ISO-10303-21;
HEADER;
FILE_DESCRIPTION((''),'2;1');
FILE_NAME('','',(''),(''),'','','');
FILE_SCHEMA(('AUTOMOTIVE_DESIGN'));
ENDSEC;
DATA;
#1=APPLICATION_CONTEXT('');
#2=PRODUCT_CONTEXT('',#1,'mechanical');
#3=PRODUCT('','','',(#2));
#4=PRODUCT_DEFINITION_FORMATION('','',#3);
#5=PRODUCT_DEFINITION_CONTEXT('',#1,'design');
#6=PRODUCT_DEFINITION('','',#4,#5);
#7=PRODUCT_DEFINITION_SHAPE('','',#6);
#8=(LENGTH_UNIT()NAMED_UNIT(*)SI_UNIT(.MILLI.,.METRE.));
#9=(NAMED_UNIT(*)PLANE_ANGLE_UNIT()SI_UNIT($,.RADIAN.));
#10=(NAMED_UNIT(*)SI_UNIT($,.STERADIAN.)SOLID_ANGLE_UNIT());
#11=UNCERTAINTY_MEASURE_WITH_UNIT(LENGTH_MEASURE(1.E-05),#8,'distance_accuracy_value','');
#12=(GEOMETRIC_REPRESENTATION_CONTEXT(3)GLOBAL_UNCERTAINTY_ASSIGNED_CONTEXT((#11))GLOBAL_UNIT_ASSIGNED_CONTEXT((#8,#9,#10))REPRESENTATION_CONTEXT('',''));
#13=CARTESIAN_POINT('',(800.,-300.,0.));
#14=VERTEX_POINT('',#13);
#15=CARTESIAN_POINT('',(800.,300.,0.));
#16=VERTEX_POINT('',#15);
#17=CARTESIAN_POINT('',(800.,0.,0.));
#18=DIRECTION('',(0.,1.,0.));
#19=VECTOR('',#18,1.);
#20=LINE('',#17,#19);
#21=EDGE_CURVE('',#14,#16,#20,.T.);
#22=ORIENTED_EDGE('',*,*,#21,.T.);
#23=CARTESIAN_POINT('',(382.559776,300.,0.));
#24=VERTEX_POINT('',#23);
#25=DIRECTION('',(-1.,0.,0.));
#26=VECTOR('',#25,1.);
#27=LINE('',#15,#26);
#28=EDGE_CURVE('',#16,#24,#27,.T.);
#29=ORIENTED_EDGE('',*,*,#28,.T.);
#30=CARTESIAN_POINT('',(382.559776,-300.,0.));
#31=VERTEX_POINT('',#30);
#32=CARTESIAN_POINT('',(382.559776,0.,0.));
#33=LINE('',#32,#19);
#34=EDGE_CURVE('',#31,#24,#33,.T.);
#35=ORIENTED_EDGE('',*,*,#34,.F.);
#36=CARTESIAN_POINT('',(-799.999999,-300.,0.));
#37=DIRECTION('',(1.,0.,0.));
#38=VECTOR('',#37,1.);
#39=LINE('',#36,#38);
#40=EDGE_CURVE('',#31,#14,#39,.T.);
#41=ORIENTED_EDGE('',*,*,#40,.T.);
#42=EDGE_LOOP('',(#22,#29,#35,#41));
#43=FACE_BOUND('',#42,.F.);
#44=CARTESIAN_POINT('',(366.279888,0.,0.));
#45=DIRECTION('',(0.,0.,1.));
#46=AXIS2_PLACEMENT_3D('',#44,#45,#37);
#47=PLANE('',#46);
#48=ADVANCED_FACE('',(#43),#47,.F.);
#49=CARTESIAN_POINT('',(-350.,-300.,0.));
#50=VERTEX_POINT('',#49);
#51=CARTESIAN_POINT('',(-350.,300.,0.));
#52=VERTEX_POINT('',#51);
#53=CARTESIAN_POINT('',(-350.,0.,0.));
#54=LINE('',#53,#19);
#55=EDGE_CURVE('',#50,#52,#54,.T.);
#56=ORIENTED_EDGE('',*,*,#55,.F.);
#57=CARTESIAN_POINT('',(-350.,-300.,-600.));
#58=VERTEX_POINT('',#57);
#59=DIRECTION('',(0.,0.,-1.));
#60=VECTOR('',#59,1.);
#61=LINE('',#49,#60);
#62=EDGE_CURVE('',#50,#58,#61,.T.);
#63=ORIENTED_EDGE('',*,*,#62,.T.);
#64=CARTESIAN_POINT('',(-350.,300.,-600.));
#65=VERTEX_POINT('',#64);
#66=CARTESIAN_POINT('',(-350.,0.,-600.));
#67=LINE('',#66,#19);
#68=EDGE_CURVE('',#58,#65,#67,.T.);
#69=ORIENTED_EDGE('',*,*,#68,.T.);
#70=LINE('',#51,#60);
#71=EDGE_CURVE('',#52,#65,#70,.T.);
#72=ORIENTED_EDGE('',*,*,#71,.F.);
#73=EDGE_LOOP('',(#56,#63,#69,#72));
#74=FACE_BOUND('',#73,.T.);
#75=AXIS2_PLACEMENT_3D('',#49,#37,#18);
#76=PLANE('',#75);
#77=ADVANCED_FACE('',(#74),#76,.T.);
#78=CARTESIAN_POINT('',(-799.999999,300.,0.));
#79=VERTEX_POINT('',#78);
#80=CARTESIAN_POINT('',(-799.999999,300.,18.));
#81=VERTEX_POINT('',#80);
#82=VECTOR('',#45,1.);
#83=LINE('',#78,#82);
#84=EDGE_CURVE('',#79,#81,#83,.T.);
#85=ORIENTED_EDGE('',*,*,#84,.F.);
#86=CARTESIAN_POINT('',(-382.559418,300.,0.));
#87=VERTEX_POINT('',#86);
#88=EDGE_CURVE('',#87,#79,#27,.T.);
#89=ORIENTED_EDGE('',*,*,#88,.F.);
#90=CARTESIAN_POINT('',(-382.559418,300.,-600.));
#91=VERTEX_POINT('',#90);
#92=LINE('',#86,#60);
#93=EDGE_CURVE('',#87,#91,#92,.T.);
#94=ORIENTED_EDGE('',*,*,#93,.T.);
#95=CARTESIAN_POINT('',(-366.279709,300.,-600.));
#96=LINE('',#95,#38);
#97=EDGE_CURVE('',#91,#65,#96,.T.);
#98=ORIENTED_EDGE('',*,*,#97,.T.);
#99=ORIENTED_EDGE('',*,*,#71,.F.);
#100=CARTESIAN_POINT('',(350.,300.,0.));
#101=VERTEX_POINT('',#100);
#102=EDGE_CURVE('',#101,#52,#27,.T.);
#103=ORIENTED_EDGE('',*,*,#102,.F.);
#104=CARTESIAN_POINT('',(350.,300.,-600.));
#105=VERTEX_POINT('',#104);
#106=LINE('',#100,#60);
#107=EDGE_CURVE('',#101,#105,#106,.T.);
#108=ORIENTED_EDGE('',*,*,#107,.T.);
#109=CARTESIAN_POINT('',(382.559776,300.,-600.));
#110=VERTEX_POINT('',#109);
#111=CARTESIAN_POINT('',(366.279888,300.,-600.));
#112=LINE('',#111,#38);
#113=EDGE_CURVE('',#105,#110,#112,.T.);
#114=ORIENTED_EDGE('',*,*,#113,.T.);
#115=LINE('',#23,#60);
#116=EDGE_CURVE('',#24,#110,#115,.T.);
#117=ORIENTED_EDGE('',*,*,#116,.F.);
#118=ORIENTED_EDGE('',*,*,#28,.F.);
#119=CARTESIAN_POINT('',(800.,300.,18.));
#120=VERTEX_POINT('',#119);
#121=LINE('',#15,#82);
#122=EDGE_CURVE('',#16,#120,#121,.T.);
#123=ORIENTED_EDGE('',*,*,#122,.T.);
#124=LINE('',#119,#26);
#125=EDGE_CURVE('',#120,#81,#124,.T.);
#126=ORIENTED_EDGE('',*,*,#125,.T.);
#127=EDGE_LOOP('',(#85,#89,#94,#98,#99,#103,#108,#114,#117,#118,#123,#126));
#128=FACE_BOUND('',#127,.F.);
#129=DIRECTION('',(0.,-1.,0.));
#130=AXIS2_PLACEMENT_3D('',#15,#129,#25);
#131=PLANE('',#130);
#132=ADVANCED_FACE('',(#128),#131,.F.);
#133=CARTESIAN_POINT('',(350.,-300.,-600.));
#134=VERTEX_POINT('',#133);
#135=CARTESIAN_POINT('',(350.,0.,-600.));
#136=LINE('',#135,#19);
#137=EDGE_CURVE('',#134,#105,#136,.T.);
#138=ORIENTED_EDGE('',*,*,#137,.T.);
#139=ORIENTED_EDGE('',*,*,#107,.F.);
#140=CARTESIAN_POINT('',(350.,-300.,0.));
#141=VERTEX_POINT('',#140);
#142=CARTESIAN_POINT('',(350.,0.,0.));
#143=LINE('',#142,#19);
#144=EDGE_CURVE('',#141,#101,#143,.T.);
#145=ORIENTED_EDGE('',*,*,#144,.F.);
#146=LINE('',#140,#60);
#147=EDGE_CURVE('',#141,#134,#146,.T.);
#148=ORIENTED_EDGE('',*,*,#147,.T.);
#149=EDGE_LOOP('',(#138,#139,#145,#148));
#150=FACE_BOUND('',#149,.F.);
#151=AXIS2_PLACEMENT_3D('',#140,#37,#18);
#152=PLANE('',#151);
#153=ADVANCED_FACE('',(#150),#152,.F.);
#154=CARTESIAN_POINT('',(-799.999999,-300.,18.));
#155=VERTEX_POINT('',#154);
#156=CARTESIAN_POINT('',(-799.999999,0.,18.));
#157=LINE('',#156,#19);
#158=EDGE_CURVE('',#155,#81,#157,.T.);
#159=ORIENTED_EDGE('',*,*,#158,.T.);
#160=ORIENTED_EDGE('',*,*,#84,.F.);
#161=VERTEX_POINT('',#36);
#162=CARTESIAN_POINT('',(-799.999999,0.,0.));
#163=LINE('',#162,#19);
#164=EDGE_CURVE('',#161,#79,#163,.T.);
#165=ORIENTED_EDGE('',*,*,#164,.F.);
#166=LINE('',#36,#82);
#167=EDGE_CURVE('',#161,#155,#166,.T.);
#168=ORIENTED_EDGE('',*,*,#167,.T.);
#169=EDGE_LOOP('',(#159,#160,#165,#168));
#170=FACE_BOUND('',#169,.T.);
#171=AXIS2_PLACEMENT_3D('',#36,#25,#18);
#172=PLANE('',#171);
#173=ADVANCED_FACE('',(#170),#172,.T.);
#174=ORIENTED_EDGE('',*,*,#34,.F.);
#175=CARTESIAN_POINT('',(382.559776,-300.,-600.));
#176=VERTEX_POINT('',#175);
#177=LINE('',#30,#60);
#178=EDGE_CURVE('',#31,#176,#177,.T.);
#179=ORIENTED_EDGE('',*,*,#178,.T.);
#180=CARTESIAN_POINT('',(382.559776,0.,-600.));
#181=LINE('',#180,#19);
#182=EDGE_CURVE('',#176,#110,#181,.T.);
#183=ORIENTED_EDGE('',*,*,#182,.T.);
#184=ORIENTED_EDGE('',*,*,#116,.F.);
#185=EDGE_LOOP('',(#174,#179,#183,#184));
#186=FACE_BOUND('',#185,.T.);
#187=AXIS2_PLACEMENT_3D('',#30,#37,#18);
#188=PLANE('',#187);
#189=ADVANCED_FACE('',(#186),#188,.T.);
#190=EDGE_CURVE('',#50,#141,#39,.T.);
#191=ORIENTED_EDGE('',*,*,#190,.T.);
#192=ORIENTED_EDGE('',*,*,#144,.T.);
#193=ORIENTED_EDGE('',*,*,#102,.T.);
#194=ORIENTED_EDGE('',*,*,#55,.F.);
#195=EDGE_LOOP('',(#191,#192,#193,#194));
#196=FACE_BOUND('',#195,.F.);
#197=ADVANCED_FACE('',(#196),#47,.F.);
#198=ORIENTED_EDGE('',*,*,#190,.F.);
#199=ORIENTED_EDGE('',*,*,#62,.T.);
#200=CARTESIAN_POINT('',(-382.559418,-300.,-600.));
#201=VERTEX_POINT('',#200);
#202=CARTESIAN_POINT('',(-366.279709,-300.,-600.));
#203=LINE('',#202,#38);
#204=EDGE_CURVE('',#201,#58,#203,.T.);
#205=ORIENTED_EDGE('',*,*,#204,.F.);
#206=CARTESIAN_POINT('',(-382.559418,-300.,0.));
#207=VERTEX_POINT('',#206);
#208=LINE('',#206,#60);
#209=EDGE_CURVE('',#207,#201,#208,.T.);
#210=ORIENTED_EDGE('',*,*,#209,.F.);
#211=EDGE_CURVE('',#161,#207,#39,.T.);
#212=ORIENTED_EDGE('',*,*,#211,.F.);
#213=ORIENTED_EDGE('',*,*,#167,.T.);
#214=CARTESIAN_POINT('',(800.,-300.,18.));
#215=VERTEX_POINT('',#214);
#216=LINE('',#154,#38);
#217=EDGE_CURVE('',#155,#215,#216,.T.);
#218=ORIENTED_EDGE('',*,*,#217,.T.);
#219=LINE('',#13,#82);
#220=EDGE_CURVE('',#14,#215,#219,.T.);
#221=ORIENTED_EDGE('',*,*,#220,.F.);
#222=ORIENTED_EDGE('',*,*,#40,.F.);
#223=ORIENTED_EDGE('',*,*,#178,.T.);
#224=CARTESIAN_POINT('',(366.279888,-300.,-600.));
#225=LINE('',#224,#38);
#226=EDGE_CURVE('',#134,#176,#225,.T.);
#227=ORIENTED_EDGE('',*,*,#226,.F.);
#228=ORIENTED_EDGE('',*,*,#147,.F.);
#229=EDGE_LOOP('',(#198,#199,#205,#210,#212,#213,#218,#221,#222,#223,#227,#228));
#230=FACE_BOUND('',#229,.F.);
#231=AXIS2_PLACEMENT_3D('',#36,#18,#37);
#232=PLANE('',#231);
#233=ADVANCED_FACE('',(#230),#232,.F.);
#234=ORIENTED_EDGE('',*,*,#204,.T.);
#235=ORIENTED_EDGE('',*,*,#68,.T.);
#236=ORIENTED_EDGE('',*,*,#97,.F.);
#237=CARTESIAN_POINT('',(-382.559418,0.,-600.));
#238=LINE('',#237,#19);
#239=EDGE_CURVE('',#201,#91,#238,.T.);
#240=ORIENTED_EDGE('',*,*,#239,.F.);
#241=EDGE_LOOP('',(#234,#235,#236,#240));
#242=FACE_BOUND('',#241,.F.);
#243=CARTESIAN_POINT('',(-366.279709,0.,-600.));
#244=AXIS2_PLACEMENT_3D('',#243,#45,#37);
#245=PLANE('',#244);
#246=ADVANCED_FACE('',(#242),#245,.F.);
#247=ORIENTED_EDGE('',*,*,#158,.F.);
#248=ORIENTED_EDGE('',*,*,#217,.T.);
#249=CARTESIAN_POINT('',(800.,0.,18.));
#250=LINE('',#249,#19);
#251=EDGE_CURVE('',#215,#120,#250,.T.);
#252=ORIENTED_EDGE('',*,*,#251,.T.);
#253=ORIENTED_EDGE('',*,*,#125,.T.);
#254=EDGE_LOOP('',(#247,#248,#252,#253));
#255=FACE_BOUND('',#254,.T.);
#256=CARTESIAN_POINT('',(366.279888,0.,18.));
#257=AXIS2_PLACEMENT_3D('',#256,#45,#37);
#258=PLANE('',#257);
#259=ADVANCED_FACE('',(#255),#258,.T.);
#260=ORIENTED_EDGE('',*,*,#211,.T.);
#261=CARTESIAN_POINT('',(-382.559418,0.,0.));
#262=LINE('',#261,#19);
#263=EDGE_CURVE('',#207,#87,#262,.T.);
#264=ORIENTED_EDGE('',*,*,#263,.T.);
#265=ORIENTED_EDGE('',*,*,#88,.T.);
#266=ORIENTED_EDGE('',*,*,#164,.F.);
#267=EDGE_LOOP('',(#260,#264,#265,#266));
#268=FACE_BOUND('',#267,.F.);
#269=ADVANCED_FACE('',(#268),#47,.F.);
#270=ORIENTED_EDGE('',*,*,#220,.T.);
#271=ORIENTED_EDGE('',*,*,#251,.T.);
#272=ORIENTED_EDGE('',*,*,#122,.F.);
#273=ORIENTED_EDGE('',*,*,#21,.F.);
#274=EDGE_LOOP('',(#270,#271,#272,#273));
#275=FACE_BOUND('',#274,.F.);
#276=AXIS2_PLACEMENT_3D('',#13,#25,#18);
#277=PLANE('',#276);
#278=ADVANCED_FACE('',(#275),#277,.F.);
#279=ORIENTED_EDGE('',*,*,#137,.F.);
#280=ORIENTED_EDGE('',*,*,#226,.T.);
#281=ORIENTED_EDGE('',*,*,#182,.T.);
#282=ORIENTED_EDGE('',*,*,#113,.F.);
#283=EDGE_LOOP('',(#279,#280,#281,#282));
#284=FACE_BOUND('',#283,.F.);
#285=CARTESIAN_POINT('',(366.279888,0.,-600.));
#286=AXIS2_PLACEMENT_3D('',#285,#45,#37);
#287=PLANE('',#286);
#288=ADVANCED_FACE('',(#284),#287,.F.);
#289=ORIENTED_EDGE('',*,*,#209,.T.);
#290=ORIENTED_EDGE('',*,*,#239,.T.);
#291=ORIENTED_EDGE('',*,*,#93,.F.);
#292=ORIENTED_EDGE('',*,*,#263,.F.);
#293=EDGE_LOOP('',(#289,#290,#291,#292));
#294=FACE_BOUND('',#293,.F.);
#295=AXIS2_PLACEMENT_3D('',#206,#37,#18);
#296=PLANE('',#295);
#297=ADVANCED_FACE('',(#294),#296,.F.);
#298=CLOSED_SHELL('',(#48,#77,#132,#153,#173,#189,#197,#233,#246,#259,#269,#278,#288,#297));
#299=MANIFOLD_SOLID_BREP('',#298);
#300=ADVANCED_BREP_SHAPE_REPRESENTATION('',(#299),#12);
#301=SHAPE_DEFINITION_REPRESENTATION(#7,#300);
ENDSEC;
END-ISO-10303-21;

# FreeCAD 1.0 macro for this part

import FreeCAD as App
import Part
import Sketcher

V = App.Vector
Q = App.Units.Quantity


def add_polygon(sketch, points):
    """Adds a closed chain of lines whose ends are joined by coincident constraints."""
    first, n = sketch.GeometryCount, len(points)
    for a, b in zip(points, points[1:] + points[:1]):
        sketch.addGeometry(Part.LineSegment(App.Vector(*a, 0), App.Vector(*b, 0)), False)
    for i in range(n):
        sketch.addConstraint(Sketcher.Constraint("Coincident", first + i, 2, first + (i + 1) % n, 1))

doc = App.newDocument("Part")
params = doc.addObject("Spreadsheet::Sheet", "Params")
for row, (alias, value) in enumerate([
    ("sketch1_width", "1599.999999 mm"),
    ("sketch1_height", "600 mm"),
    ("pad1_length", "18 mm"),
    ("sketch2_height", "600 mm"),
    ("pad2_length", "600 mm"),
], start=1):
    params.set(f"A{row}", alias)
    params.set(f"B{row}", "=" + value)
    params.setAlias(f"B{row}", alias)

body = doc.addObject("PartDesign::Body", "Body")

# Sketch on XY plane
sketch1 = body.newObject("Sketcher::SketchObject", "Sketch")
sketch1.AttachmentSupport = (doc.getObject("XY_Plane"), [""])
sketch1.MapMode = "FlatFace"
add_polygon(sketch1, [(800, -300), (800, 300), (-800, 300), (-800, -300)])  # lines 0-3
sketch1.addConstraint([
    Sketcher.Constraint("Vertical", 0),
    Sketcher.Constraint("Horizontal", 1),
    Sketcher.Constraint("Vertical", 2),
    Sketcher.Constraint("Horizontal", 3),
    Sketcher.Constraint("Symmetric", 0, 2, 2, 2, -1, 1),
    Sketcher.Constraint("DistanceX", 1, 2, 1, 1, Q("1599.999999 mm")),
    Sketcher.Constraint("DistanceY", 0, 1, 0, 2, Q("600 mm")),
])
sketch1.setExpression("Constraints[9]", "Params.sketch1_width")
sketch1.setExpression("Constraints[10]", "Params.sketch1_height")
pad1 = body.newObject("PartDesign::Pad", "Pad")
pad1.Profile = sketch1
pad1.setExpression("Length", "Params.pad1_length")

# Sketch on XY plane
sketch2 = body.newObject("Sketcher::SketchObject", "Sketch001")
sketch2.AttachmentSupport = (doc.getObject("XY_Plane"), [""])
sketch2.MapMode = "FlatFace"
add_polygon(sketch2, [(-383, 300), (-383, -300), (-350, -300), (-350, 300)])  # lines 0-3
add_polygon(sketch2, [(350, 300), (350, -300), (383, -300), (383, 300)])  # lines 4-7
sketch2.addConstraint([
    Sketcher.Constraint("Vertical", 0),
    Sketcher.Constraint("Horizontal", 1),
    Sketcher.Constraint("Vertical", 2),
    Sketcher.Constraint("Horizontal", 3),
    Sketcher.Constraint("Vertical", 4),
    Sketcher.Constraint("Horizontal", 5),
    Sketcher.Constraint("Vertical", 6),
    Sketcher.Constraint("Horizontal", 7),
    Sketcher.Constraint("Symmetric", 2, 2, 4, 2, -1, 1),
    Sketcher.Constraint("Horizontal", 1, 2, 4, 2),
    Sketcher.Constraint("Horizontal", 3, 2, 6, 2),
    Sketcher.Constraint("DistanceY", 0, 2, 0, 1, Q("600 mm")),
    Sketcher.Constraint("DistanceX", 1, 2, -1, 1, Q("350 mm")),
    Sketcher.Constraint("DistanceX", 1, 1, 1, 2, Q("32.559419 mm")),
    Sketcher.Constraint("DistanceX", 5, 1, 5, 2, Q("32.559776 mm")),
])
sketch2.setExpression("Constraints[19]", "Params.sketch2_height")
pad2 = body.newObject("PartDesign::Pad", "Pad001")
pad2.Profile = sketch2
pad2.setExpression("Length", "Params.pad2_length")
pad2.Reversed = True

doc.recompute()
